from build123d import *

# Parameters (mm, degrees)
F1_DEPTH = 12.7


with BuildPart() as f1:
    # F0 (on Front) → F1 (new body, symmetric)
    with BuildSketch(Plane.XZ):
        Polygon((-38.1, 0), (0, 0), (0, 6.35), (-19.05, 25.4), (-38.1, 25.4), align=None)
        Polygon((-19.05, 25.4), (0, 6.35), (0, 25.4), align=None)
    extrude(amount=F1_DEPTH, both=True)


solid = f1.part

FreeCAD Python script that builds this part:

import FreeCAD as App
import Part
import Sketcher
Q = App.Units.Quantity

doc = App.newDocument("Part")
body = doc.addObject("PartDesign::Body", "Body")

sketch1 = body.newObject("Sketcher::SketchObject", "Sketch")
sketch1.AttachmentSupport = (doc.getObject("XZ_Plane"), [""])
sketch1.MapMode = "FlatFace"
sketch1.addGeometry([
    Part.LineSegment(App.Vector(-38, 0, 0), App.Vector(0, 0, 0)),
    Part.LineSegment(App.Vector(0, 0, 0), App.Vector(0, 25, 0)),
    Part.LineSegment(App.Vector(0, 25, 0), App.Vector(-38, 25, 0)),
    Part.LineSegment(App.Vector(-38, 25, 0), App.Vector(-38, 0, 0)),
], False)
sketch1.addConstraint([
    Sketcher.Constraint("Coincident", 0, 2, 1, 1),
    Sketcher.Constraint("Coincident", 1, 2, 2, 1),
    Sketcher.Constraint("Coincident", 2, 2, 3, 1),
    Sketcher.Constraint("Coincident", 3, 2, 0, 1),
    Sketcher.Constraint("Horizontal", 0),
    Sketcher.Constraint("Vertical", 1),
    Sketcher.Constraint("Horizontal", 2),
    Sketcher.Constraint("Vertical", 3),
    Sketcher.Constraint("Coincident", 0, 2, -1, 1),
    Sketcher.Constraint("DistanceY", 1, 1, 1, 2, Q("1 in")),
    Sketcher.Constraint("DistanceX", 0, 1, 0, 2, Q("1.5 in")),
])
pad1 = body.newObject("PartDesign::Pad", "Pad")
pad1.Profile = sketch1
pad1.Length = Q("1 in")
pad1.Midplane = True

doc.recompute()
